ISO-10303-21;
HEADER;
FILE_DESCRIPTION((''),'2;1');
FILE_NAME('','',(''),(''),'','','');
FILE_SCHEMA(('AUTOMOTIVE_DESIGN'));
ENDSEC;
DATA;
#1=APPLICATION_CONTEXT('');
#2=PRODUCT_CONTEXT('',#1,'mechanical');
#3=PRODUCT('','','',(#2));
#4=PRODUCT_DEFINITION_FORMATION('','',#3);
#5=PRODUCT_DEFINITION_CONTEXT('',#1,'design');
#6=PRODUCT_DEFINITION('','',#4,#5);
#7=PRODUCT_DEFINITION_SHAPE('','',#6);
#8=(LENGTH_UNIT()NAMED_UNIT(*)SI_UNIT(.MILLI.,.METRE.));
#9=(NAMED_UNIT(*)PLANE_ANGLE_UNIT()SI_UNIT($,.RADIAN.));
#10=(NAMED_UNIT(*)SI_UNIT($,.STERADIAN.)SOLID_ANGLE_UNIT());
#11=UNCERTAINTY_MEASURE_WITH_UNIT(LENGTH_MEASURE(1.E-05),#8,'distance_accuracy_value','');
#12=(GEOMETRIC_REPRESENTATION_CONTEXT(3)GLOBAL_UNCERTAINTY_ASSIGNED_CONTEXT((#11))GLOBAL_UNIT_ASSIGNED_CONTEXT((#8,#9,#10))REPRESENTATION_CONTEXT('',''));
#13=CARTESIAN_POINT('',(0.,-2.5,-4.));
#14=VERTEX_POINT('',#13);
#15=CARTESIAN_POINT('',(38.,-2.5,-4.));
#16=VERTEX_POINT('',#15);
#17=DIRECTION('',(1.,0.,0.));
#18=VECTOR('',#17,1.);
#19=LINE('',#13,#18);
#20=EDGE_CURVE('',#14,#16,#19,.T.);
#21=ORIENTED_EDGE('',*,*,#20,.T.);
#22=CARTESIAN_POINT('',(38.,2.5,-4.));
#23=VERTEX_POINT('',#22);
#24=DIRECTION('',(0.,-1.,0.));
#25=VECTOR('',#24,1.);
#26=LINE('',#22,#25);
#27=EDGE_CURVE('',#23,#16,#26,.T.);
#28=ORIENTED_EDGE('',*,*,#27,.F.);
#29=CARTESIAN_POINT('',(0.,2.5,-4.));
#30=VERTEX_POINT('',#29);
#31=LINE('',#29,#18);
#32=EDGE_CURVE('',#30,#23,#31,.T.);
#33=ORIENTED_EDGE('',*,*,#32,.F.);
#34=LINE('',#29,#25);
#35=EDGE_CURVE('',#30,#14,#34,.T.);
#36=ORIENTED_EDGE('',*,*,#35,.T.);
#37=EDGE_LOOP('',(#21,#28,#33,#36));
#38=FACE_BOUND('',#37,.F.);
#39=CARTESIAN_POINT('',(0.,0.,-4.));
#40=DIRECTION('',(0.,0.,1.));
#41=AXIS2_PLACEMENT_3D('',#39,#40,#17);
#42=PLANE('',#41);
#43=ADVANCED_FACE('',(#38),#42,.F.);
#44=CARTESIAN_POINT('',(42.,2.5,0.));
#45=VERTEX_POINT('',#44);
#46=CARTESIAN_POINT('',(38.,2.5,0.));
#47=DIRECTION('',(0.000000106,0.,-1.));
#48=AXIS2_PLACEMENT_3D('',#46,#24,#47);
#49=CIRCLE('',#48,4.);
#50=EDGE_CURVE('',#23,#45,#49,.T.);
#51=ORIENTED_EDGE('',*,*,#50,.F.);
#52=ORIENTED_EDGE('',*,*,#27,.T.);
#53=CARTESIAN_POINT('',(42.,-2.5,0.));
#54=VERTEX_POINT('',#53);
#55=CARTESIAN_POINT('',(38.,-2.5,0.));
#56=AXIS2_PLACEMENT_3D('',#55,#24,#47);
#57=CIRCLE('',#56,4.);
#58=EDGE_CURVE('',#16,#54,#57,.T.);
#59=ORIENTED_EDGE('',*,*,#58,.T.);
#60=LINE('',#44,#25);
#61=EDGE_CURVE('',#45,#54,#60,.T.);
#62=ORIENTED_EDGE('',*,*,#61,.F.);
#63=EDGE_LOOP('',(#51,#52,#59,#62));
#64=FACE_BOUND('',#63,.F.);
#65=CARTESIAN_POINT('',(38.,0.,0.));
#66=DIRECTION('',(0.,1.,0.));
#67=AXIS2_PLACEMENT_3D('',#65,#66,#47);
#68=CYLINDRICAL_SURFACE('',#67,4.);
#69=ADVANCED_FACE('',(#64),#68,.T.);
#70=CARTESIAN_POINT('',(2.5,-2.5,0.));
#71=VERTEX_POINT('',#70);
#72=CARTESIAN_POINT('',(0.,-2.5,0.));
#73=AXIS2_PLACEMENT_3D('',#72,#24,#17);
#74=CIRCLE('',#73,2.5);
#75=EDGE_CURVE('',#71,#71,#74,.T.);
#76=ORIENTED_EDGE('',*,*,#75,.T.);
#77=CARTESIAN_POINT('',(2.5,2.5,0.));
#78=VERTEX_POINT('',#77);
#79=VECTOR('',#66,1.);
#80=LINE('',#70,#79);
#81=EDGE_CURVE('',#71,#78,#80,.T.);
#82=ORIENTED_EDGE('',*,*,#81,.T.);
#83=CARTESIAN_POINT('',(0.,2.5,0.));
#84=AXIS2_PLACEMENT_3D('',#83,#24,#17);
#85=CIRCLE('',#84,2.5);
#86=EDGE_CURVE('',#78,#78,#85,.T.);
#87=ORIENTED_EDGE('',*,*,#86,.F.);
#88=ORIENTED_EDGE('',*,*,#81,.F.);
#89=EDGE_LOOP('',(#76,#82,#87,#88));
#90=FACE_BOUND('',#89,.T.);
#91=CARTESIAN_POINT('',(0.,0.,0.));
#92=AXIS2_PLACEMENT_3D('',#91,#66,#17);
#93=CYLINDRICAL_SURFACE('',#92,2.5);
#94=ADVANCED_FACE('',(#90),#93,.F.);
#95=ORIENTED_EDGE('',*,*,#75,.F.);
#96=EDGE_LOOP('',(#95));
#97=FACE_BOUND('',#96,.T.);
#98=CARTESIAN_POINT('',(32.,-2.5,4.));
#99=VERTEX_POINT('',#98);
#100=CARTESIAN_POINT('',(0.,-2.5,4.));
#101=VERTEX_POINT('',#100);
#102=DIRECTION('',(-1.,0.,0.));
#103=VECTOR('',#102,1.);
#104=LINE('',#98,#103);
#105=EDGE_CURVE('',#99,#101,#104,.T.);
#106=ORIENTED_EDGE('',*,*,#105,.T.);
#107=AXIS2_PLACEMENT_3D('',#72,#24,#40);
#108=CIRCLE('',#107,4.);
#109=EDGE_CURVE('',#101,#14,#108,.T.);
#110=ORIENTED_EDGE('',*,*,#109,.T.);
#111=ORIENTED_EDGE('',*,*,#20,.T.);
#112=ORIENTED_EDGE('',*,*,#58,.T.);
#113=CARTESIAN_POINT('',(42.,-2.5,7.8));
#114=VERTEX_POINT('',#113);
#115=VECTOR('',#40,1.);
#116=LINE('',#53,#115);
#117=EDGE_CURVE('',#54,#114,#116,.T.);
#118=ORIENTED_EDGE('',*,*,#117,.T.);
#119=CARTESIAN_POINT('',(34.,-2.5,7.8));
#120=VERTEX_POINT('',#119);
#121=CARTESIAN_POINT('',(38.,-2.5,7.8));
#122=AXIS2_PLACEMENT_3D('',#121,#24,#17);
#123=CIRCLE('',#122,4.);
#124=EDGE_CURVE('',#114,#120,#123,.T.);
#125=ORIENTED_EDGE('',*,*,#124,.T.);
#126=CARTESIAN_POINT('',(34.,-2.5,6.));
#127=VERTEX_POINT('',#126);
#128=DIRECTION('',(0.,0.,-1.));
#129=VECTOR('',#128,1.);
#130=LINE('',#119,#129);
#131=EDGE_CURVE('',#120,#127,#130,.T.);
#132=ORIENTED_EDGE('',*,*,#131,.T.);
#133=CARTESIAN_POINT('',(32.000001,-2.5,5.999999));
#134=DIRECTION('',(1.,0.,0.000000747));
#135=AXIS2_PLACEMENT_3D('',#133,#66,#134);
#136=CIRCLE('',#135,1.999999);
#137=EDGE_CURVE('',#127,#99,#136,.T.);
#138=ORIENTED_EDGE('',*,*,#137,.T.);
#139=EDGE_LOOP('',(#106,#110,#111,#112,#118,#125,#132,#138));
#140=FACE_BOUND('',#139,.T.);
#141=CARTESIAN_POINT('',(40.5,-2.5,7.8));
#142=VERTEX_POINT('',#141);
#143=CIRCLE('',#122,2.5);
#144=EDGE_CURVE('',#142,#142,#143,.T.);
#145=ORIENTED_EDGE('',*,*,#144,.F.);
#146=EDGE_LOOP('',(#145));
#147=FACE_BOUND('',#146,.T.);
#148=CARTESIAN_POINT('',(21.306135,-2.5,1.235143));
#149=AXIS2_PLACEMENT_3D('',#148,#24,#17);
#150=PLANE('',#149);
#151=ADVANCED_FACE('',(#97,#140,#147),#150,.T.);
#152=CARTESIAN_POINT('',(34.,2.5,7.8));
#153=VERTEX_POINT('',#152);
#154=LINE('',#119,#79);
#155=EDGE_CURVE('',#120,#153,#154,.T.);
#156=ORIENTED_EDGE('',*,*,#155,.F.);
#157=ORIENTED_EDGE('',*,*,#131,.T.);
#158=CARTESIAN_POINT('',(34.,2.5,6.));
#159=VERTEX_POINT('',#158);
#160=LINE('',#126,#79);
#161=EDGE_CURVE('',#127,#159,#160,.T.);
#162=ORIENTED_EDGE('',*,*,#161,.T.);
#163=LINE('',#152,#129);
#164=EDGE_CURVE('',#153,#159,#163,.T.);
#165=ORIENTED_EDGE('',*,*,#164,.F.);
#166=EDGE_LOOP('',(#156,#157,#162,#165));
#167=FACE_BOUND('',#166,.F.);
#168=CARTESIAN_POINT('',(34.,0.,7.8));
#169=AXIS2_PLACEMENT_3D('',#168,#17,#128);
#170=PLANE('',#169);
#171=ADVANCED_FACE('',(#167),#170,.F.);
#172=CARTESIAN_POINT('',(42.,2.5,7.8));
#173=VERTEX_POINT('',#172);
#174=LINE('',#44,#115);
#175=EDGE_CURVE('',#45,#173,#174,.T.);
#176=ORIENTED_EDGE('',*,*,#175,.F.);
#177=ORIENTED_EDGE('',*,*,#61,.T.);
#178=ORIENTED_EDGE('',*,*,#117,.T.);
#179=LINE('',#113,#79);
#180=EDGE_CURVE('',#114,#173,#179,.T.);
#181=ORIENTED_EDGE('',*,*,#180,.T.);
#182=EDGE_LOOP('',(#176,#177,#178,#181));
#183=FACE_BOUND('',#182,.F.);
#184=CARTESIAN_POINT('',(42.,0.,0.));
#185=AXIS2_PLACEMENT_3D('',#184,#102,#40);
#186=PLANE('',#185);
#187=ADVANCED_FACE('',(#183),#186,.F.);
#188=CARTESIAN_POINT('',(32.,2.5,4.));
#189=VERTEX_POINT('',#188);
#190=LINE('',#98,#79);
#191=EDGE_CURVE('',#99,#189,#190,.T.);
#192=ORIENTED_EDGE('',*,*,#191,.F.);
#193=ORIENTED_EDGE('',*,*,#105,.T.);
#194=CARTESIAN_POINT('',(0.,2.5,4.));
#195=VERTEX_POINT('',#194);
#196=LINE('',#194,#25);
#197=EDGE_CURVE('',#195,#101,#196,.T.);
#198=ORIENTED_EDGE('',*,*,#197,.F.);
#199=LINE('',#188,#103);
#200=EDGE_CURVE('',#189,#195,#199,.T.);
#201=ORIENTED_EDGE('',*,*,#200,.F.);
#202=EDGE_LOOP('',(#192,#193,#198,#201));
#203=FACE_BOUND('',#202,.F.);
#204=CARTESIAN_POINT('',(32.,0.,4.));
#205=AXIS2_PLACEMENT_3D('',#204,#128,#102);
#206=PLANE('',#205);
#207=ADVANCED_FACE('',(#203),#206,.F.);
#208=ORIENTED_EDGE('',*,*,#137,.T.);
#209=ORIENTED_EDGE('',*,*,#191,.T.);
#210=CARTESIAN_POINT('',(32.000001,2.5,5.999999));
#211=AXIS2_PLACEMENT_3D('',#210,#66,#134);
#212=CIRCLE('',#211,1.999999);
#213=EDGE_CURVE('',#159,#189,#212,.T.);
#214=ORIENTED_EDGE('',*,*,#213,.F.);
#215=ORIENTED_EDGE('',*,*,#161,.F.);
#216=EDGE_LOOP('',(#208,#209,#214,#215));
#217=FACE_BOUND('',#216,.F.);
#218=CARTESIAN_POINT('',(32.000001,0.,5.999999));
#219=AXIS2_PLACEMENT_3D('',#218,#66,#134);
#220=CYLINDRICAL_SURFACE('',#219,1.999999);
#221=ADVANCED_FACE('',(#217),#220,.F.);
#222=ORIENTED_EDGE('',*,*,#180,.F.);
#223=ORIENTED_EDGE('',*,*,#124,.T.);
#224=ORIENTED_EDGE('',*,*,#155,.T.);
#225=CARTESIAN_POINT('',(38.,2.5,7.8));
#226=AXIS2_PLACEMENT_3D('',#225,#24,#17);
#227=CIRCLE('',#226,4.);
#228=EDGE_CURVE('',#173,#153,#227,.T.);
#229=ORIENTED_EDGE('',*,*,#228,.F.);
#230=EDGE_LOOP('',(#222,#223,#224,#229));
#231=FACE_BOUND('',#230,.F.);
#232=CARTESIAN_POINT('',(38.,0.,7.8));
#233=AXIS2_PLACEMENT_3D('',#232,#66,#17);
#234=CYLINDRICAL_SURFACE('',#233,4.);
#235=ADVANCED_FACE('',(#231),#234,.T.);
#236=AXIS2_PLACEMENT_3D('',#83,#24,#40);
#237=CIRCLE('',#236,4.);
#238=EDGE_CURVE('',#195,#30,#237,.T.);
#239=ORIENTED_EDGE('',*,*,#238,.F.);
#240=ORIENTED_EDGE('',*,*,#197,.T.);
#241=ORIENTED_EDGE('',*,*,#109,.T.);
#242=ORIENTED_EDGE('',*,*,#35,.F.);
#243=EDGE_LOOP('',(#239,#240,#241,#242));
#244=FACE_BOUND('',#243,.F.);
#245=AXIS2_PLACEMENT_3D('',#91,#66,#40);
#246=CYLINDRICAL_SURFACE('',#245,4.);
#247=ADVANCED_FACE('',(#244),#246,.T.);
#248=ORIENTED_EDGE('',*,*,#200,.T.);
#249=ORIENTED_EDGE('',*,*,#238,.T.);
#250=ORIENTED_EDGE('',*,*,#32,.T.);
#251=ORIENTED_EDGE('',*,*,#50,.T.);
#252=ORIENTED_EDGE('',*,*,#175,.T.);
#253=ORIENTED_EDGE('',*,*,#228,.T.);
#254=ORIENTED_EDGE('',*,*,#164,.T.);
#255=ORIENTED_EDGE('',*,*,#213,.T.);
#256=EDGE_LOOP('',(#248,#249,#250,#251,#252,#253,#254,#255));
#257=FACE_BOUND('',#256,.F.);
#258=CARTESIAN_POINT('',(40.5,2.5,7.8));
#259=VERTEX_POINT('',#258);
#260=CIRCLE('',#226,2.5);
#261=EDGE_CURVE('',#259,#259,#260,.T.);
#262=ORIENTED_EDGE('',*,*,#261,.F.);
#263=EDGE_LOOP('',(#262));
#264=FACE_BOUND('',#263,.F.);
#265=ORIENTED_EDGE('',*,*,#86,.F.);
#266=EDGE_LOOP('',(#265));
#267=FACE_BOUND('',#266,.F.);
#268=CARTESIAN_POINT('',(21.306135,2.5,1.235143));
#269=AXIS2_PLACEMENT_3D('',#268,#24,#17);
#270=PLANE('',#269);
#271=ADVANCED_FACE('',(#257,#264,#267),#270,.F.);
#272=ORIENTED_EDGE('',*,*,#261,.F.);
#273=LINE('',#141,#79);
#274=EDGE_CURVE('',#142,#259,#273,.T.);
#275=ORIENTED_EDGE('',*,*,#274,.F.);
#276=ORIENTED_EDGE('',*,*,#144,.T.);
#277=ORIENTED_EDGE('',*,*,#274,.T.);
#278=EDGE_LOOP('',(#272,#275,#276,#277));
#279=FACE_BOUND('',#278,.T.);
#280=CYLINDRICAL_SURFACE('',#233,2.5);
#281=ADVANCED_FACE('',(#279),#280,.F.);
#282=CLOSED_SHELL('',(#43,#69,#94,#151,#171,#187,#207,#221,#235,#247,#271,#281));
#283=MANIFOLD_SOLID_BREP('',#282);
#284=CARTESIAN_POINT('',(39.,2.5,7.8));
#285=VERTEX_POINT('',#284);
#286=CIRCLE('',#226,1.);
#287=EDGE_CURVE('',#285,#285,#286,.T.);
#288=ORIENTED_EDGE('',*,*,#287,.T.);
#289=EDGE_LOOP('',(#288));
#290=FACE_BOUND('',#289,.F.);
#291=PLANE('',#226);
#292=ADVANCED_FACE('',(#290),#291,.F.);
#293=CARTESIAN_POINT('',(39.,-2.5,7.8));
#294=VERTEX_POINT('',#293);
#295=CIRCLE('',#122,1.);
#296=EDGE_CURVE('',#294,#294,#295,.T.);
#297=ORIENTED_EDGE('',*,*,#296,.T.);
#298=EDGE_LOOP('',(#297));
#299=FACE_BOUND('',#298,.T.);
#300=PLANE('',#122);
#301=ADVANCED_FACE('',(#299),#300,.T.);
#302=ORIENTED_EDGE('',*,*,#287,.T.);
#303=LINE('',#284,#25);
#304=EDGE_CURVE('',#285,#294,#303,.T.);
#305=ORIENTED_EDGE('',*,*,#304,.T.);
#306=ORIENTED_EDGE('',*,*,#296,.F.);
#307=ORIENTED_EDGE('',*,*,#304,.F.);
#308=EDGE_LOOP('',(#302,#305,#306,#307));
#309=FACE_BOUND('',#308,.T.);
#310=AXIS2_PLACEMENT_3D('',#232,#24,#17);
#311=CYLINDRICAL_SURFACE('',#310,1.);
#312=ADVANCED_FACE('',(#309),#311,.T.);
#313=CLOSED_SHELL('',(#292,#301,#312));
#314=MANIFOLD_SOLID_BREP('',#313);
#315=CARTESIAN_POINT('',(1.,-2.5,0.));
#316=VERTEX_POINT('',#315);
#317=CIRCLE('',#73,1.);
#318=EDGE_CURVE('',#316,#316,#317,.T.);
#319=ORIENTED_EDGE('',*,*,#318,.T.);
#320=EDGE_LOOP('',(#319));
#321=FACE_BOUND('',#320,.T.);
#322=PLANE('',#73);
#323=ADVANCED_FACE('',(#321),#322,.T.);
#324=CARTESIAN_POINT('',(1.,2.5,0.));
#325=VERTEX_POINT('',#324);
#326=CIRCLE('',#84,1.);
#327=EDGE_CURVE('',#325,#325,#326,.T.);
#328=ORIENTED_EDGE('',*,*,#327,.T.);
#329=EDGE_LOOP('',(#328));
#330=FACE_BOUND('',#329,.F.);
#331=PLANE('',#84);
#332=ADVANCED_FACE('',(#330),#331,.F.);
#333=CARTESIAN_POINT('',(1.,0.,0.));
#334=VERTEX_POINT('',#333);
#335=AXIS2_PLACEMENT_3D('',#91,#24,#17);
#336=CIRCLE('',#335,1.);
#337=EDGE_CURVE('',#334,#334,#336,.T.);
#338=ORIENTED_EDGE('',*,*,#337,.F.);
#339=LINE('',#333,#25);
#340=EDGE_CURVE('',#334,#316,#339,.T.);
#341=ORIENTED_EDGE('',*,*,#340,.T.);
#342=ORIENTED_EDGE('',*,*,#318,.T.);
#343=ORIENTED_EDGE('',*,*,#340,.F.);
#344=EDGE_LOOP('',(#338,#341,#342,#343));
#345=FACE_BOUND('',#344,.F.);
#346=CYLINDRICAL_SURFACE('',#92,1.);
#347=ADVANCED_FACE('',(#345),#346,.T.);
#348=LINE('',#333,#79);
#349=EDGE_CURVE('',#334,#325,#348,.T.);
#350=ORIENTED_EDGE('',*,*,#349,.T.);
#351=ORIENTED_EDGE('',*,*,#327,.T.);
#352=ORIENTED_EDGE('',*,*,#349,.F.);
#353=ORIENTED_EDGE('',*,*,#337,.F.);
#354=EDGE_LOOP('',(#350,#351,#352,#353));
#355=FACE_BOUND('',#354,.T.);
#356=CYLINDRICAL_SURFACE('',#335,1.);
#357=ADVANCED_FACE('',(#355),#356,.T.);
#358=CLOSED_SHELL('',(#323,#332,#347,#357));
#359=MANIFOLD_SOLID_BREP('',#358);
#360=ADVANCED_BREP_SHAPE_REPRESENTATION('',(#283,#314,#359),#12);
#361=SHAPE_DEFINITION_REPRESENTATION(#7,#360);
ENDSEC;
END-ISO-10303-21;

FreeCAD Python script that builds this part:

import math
import FreeCAD as App
import Part
import Sketcher

doc = App.newDocument("Part")
body = doc.addObject("PartDesign::Body", "Body")
body.AllowCompound = True

# Sketch on XZ plane
sketch1 = body.newObject("Sketcher::SketchObject", "Sketch")
sketch1.AttachmentSupport = (doc.getObject("XZ_Plane"), [""])
sketch1.MapMode = "FlatFace"
sketch1.addGeometry(Part.LineSegment(App.Vector(32, 4, 0), App.Vector(0, 4, 0)), False)
sketch1.addGeometry(Part.ArcOfCircle(Part.Circle(App.Vector(0, 0, 0), App.Vector(0, 0, 1), 4), math.radians(90), math.radians(270)), False)
sketch1.addGeometry(Part.LineSegment(App.Vector(0, -4, 0), App.Vector(38, -4, 0)), False)
sketch1.addGeometry(Part.ArcOfCircle(Part.Circle(App.Vector(38, 0, 0), App.Vector(0, 0, 1), 4), math.radians(-90), math.radians(0)), False)
sketch1.addGeometry(Part.LineSegment(App.Vector(42, 0, 0), App.Vector(42, 7.8, 0)), False)
sketch1.addGeometry(Part.ArcOfCircle(Part.Circle(App.Vector(38, 7.8, 0), App.Vector(0, 0, 1), 4), math.radians(0), math.radians(180)), False)
sketch1.addGeometry(Part.LineSegment(App.Vector(34, 7.8, 0), App.Vector(34, 6, 0)), False)
sketch1.addGeometry(Part.ArcOfCircle(Part.Circle(App.Vector(32, 6, 0), App.Vector(0, 0, 1), 2), math.radians(-90), math.radians(0)), False)
sketch1.addGeometry(Part.Circle(App.Vector(0, 0, 0), App.Vector(0, 0, 1), 2.5), False)
sketch1.addGeometry(Part.Circle(App.Vector(38, 7.8, 0), App.Vector(0, 0, 1), 2.5), False)
sketch1.addGeometry(Part.Circle(App.Vector(0, 0, 0), App.Vector(0, 0, 1), 1), False)
sketch1.addGeometry(Part.Circle(App.Vector(38, 7.8, 0), App.Vector(0, 0, 1), 1), False)
sketch1.addConstraint(Sketcher.Constraint("Tangent", 0, 2, 1, 1))
sketch1.addConstraint(Sketcher.Constraint("Tangent", 1, 2, 2, 1))
sketch1.addConstraint(Sketcher.Constraint("Tangent", 2, 2, 3, 1))
sketch1.addConstraint(Sketcher.Constraint("Tangent", 3, 2, 4, 1))
sketch1.addConstraint(Sketcher.Constraint("Tangent", 4, 2, 5, 1))
sketch1.addConstraint(Sketcher.Constraint("Tangent", 5, 2, 6, 1))
sketch1.addConstraint(Sketcher.Constraint("Tangent", 6, 2, 7, 2))
sketch1.addConstraint(Sketcher.Constraint("Tangent", 7, 1, 0, 1))
sketch1.addConstraint(Sketcher.Constraint("Horizontal", 0))
sketch1.addConstraint(Sketcher.Constraint("Horizontal", 2))
sketch1.addConstraint(Sketcher.Constraint("Vertical", 4))
sketch1.addConstraint(Sketcher.Constraint("Vertical", 6))
sketch1.addConstraint(Sketcher.Constraint("Coincident", 1, 3, -1, 1))
sketch1.addConstraint(Sketcher.Constraint("Coincident", 8, 3, -1, 1))
sketch1.addConstraint(Sketcher.Constraint("Coincident", 10, 3, -1, 1))
sketch1.addConstraint(Sketcher.Constraint("Coincident", 9, 3, 5, 3))
sketch1.addConstraint(Sketcher.Constraint("Coincident", 11, 3, 5, 3))
sketch1.addConstraint(Sketcher.Constraint("Equal", 1, 3))
sketch1.addConstraint(Sketcher.Constraint("Equal", 3, 5))
sketch1.addConstraint(Sketcher.Constraint("Equal", 8, 9))
sketch1.addConstraint(Sketcher.Constraint("Equal", 10, 11))
sketch1.addConstraint(Sketcher.Constraint("Diameter", 8, 5.0))
sketch1.addConstraint(Sketcher.Constraint("Diameter", 10, 2.0))
sketch1.addConstraint(Sketcher.Constraint("Radius", 1, 4.0))
sketch1.addConstraint(Sketcher.Constraint("Radius", 7, 1.999999))
sketch1.addConstraint(Sketcher.Constraint("DistanceX", 0, 2, 0, 1, 32.0))
sketch1.addConstraint(Sketcher.Constraint("DistanceY", 4, 1, 4, 2, 7.8))
pad1 = body.newObject("PartDesign::Pad", "Pad")
pad1.Profile = sketch1
pad1.Length = 5
pad1.Midplane = True

doc.recompute()
